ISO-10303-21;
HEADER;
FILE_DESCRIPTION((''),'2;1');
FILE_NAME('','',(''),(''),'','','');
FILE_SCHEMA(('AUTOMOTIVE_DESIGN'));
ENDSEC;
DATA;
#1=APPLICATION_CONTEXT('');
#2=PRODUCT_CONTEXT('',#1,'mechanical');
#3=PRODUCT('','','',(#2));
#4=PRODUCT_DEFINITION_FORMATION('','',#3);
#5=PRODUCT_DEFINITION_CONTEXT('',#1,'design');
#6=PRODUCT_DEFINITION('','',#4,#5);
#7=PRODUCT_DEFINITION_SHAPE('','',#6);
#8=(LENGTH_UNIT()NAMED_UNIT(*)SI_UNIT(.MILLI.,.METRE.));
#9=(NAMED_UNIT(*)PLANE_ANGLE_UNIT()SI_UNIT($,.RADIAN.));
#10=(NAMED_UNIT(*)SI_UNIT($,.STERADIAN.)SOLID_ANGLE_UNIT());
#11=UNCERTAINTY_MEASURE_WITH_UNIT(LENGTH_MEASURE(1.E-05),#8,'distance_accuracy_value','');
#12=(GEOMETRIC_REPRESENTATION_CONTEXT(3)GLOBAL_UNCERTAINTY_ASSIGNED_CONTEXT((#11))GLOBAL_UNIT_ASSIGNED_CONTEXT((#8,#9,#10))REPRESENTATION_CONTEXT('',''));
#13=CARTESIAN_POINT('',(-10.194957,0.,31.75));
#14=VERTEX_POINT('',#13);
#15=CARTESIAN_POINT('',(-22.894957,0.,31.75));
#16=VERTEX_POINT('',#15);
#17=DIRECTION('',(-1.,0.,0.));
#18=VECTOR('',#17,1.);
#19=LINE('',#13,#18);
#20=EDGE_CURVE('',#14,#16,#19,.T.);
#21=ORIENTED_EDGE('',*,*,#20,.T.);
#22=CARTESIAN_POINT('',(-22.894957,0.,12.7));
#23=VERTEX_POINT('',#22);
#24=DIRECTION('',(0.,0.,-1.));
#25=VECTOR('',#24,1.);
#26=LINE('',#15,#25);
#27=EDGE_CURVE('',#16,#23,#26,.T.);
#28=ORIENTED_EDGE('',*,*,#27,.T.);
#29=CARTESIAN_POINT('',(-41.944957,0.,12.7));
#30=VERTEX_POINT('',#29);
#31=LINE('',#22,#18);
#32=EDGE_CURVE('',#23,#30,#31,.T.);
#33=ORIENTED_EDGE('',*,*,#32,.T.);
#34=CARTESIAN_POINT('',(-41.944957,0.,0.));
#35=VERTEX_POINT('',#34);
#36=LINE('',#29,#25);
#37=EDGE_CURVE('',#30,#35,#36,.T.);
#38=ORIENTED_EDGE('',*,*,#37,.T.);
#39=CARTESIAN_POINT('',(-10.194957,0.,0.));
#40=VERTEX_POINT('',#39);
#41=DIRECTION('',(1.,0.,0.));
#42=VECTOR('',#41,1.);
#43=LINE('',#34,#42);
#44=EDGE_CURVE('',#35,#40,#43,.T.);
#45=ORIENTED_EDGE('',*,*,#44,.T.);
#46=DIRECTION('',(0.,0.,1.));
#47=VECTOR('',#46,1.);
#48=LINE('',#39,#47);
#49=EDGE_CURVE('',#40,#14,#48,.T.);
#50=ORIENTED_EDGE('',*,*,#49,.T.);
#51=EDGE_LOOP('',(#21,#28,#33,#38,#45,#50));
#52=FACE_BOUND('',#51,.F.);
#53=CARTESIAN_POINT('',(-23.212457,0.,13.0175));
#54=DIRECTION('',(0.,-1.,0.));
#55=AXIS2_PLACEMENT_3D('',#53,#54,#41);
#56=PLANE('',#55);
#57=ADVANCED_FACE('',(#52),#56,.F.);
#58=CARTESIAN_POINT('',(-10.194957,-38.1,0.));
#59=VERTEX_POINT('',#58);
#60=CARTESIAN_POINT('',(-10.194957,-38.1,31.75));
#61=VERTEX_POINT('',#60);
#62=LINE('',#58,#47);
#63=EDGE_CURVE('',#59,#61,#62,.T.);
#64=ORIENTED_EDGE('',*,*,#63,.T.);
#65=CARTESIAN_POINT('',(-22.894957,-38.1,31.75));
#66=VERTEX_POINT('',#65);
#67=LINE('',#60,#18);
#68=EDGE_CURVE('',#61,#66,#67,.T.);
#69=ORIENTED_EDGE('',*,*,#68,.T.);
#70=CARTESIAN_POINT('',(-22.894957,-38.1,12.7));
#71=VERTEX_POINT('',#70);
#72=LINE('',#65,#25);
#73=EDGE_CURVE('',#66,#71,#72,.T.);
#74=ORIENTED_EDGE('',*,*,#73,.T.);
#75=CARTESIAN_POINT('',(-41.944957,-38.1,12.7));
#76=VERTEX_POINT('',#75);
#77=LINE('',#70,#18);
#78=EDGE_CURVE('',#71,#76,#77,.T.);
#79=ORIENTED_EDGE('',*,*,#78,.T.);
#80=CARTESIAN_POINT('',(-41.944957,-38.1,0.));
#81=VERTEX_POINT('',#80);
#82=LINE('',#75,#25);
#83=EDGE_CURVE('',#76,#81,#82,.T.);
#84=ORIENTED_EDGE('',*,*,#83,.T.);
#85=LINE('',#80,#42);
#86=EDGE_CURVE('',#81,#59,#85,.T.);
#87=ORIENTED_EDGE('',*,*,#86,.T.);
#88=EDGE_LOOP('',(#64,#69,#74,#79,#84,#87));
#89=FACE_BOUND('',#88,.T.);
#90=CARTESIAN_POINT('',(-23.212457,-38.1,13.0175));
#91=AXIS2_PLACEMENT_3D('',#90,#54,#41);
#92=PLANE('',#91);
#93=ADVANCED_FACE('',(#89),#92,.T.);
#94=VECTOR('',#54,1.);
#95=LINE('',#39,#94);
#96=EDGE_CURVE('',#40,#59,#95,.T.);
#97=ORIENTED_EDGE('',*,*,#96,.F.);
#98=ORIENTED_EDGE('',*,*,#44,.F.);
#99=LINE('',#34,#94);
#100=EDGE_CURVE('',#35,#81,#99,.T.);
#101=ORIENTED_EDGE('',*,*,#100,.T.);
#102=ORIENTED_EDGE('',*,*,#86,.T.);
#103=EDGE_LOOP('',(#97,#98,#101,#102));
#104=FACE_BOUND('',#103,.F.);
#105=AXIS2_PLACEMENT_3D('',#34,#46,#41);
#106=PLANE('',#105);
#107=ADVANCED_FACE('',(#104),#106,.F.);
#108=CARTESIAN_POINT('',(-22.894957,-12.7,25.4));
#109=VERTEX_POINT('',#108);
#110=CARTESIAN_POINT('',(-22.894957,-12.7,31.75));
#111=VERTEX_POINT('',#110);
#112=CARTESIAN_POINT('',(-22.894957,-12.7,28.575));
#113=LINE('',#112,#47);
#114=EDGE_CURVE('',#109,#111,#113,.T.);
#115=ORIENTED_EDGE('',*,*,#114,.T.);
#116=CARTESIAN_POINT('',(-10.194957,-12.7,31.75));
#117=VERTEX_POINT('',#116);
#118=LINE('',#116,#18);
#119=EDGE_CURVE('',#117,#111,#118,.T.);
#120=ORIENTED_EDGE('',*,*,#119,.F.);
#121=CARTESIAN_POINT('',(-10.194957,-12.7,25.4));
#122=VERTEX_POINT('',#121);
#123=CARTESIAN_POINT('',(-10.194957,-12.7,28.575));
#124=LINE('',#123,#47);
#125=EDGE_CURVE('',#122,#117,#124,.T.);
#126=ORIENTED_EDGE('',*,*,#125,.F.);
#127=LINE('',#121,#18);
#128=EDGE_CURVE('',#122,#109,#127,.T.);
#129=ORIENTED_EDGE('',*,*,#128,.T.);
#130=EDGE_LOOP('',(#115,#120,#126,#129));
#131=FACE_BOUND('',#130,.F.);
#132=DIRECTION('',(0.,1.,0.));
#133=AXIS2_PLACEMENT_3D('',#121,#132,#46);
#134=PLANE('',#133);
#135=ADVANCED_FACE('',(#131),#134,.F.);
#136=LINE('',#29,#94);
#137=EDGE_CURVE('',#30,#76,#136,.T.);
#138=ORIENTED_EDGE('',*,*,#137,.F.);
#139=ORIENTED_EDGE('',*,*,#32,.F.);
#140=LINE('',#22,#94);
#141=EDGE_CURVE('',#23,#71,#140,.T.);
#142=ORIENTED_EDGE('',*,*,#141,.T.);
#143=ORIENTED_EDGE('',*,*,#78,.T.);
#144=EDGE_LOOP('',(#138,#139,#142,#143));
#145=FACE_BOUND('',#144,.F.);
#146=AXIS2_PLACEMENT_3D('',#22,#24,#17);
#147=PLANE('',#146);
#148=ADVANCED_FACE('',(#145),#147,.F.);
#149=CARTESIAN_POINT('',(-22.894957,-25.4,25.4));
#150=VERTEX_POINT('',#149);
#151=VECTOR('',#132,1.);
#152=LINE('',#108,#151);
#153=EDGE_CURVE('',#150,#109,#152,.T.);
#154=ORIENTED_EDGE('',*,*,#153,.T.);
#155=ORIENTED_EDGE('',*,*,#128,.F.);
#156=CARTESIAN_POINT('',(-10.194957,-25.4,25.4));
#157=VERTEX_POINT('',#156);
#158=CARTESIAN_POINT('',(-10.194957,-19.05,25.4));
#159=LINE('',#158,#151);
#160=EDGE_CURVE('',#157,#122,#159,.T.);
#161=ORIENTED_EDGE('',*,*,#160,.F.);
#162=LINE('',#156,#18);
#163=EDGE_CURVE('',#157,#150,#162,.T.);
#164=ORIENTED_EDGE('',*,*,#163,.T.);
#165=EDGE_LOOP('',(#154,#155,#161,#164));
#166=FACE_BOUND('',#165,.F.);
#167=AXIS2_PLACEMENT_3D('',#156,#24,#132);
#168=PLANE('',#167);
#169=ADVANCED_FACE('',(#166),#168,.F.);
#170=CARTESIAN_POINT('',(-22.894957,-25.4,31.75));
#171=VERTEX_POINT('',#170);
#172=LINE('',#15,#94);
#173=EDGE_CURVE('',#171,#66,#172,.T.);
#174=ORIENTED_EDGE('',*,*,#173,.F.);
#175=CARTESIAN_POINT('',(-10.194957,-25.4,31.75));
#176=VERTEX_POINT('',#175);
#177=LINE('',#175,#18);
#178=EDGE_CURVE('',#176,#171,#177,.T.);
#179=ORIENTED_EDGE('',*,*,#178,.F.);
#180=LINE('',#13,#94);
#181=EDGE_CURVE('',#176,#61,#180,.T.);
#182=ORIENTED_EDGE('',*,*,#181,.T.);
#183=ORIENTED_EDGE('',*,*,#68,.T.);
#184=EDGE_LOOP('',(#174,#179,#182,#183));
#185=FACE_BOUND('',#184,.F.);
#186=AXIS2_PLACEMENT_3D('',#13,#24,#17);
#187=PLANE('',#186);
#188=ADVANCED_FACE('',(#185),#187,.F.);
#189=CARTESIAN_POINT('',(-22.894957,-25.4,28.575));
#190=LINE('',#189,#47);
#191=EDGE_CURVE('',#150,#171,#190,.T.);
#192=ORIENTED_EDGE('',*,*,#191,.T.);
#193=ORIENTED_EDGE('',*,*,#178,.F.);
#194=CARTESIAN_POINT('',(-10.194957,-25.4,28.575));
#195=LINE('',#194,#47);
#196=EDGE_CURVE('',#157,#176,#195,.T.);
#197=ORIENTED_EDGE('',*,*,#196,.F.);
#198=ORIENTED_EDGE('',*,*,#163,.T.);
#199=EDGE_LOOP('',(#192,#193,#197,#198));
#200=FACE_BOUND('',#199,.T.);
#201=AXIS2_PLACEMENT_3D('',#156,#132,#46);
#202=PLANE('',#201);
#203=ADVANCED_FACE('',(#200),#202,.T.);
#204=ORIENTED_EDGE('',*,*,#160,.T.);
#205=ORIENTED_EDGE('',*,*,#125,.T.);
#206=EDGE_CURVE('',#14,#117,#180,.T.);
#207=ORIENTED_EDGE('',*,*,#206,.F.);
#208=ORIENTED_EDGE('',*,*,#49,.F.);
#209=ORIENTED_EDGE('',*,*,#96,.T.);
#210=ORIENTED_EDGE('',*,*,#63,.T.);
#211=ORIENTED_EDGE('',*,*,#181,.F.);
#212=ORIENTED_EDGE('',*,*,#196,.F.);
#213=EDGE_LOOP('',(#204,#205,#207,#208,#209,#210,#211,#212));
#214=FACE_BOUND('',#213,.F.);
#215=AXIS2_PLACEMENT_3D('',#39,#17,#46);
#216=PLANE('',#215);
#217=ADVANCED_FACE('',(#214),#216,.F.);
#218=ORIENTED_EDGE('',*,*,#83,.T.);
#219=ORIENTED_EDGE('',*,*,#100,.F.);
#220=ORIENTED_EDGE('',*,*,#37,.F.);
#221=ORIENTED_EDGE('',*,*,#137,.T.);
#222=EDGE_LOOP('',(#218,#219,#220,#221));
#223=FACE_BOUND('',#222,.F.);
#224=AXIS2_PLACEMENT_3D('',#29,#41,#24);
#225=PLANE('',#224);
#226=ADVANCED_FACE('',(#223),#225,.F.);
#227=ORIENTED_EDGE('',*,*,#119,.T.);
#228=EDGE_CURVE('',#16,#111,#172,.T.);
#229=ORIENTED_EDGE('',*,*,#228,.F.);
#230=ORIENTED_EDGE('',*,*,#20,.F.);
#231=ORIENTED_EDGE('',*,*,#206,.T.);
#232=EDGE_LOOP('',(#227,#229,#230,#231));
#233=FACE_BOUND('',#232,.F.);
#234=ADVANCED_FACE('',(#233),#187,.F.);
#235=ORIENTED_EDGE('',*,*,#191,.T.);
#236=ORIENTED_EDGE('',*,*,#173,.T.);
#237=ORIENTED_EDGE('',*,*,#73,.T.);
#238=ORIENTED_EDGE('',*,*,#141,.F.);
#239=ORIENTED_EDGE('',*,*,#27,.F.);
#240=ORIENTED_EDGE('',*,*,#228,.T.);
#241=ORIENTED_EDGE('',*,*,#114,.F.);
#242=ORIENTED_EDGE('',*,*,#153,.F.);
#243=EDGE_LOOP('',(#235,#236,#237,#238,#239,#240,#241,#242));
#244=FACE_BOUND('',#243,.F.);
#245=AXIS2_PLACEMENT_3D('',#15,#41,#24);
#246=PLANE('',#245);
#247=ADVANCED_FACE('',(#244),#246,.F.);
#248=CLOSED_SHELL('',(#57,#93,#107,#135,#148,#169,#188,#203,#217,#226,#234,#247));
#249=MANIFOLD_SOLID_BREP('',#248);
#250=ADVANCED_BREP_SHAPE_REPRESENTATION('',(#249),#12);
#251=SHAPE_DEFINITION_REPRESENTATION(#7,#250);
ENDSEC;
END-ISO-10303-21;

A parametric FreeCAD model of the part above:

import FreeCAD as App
import Part
import Sketcher

V = App.Vector
Q = App.Units.Quantity

doc = App.newDocument("Part")
body = doc.addObject("PartDesign::Body", "Body")

sketch1 = body.newObject("Sketcher::SketchObject", "Sketch")
sketch1.AttachmentSupport = (doc.getObject("XZ_Plane"), [""])
sketch1.MapMode = "FlatFace"
sketch1.addGeometry([
    Part.LineSegment(V(-42, 13, 0), V(-42, 0, 0)),
    Part.LineSegment(V(-42, 0, 0), V(-10, 0, 0)),
    Part.LineSegment(V(-10, 0, 0), V(-10, 32, 0)),
    Part.LineSegment(V(-10, 32, 0), V(-23, 32, 0)),
    Part.LineSegment(V(-23, 32, 0), V(-23, 13, 0)),
    Part.LineSegment(V(-23, 13, 0), V(-42, 13, 0)),
], False)
sketch1.addConstraint([
    Sketcher.Constraint("Coincident", 0, 2, 1, 1),
    Sketcher.Constraint("Coincident", 1, 2, 2, 1),
    Sketcher.Constraint("Coincident", 2, 2, 3, 1),
    Sketcher.Constraint("Coincident", 3, 2, 4, 1),
    Sketcher.Constraint("Coincident", 4, 2, 5, 1),
    Sketcher.Constraint("Coincident", 5, 2, 0, 1),
    Sketcher.Constraint("Vertical", 0),
    Sketcher.Constraint("Horizontal", 1),
    Sketcher.Constraint("Vertical", 2),
    Sketcher.Constraint("Horizontal", 3),
    Sketcher.Constraint("Vertical", 4),
    Sketcher.Constraint("Horizontal", 5),
    Sketcher.Constraint("PointOnObject", 0, 2, -1),
    Sketcher.Constraint("Equal", 3, 0),
    Sketcher.Constraint("Equal", 1, 2),
    Sketcher.Constraint("DistanceX", 3, 2, 3, 1, Q("0.5 in")),
    Sketcher.Constraint("DistanceX", 1, 1, 1, 2, Q("1.25 in")),
    Sketcher.Constraint("DistanceX", 0, 2, -1, 1, 41.944957),
])
pad1 = body.newObject("PartDesign::Pad", "Pad")
pad1.Profile = sketch1
pad1.Length = Q("1.5 in")

sketch2 = body.newObject("Sketcher::SketchObject", "Sketch001")
sketch2.AttachmentSupport = (doc.getObject("YZ_Plane"), [""])
sketch2.MapMode = "FlatFace"
sketch2.AttachmentOffset = App.Placement(V(0, 0, -10.194957), App.Rotation())
sketch2.addGeometry([
    Part.LineSegment(V(-25, 32, 0), V(-25, 25, 0)),
    Part.LineSegment(V(-25, 25, 0), V(-13, 25, 0)),
    Part.LineSegment(V(-13, 25, 0), V(-13, 32, 0)),
    Part.LineSegment(V(-13, 32, 0), V(-25, 32, 0)),
], False)
sketch2.addConstraint([
    Sketcher.Constraint("Coincident", 0, 2, 1, 1),
    Sketcher.Constraint("Coincident", 1, 2, 2, 1),
    Sketcher.Constraint("Coincident", 2, 2, 3, 1),
    Sketcher.Constraint("Coincident", 3, 2, 0, 1),
    Sketcher.Constraint("Vertical", 0),
    Sketcher.Constraint("Horizontal", 1),
    Sketcher.Constraint("Vertical", 2),
    Sketcher.Constraint("Horizontal", 3),
    Sketcher.Constraint("DistanceX", 1, 1, 1, 2, Q("0.5 in")),
    Sketcher.Constraint("DistanceX", 0, 2, -1, 1, Q("1 in")),
    Sketcher.Constraint("DistanceY", -1, 1, 0, 2, Q("1 in")),
    Sketcher.Constraint("DistanceY", 0, 2, 0, 1, Q("0.25 in")),
])
pocket1 = body.newObject("PartDesign::Pocket", "Pocket")
pocket1.Profile = sketch2
pocket1.Length = Q("1 in")

doc.recompute()
